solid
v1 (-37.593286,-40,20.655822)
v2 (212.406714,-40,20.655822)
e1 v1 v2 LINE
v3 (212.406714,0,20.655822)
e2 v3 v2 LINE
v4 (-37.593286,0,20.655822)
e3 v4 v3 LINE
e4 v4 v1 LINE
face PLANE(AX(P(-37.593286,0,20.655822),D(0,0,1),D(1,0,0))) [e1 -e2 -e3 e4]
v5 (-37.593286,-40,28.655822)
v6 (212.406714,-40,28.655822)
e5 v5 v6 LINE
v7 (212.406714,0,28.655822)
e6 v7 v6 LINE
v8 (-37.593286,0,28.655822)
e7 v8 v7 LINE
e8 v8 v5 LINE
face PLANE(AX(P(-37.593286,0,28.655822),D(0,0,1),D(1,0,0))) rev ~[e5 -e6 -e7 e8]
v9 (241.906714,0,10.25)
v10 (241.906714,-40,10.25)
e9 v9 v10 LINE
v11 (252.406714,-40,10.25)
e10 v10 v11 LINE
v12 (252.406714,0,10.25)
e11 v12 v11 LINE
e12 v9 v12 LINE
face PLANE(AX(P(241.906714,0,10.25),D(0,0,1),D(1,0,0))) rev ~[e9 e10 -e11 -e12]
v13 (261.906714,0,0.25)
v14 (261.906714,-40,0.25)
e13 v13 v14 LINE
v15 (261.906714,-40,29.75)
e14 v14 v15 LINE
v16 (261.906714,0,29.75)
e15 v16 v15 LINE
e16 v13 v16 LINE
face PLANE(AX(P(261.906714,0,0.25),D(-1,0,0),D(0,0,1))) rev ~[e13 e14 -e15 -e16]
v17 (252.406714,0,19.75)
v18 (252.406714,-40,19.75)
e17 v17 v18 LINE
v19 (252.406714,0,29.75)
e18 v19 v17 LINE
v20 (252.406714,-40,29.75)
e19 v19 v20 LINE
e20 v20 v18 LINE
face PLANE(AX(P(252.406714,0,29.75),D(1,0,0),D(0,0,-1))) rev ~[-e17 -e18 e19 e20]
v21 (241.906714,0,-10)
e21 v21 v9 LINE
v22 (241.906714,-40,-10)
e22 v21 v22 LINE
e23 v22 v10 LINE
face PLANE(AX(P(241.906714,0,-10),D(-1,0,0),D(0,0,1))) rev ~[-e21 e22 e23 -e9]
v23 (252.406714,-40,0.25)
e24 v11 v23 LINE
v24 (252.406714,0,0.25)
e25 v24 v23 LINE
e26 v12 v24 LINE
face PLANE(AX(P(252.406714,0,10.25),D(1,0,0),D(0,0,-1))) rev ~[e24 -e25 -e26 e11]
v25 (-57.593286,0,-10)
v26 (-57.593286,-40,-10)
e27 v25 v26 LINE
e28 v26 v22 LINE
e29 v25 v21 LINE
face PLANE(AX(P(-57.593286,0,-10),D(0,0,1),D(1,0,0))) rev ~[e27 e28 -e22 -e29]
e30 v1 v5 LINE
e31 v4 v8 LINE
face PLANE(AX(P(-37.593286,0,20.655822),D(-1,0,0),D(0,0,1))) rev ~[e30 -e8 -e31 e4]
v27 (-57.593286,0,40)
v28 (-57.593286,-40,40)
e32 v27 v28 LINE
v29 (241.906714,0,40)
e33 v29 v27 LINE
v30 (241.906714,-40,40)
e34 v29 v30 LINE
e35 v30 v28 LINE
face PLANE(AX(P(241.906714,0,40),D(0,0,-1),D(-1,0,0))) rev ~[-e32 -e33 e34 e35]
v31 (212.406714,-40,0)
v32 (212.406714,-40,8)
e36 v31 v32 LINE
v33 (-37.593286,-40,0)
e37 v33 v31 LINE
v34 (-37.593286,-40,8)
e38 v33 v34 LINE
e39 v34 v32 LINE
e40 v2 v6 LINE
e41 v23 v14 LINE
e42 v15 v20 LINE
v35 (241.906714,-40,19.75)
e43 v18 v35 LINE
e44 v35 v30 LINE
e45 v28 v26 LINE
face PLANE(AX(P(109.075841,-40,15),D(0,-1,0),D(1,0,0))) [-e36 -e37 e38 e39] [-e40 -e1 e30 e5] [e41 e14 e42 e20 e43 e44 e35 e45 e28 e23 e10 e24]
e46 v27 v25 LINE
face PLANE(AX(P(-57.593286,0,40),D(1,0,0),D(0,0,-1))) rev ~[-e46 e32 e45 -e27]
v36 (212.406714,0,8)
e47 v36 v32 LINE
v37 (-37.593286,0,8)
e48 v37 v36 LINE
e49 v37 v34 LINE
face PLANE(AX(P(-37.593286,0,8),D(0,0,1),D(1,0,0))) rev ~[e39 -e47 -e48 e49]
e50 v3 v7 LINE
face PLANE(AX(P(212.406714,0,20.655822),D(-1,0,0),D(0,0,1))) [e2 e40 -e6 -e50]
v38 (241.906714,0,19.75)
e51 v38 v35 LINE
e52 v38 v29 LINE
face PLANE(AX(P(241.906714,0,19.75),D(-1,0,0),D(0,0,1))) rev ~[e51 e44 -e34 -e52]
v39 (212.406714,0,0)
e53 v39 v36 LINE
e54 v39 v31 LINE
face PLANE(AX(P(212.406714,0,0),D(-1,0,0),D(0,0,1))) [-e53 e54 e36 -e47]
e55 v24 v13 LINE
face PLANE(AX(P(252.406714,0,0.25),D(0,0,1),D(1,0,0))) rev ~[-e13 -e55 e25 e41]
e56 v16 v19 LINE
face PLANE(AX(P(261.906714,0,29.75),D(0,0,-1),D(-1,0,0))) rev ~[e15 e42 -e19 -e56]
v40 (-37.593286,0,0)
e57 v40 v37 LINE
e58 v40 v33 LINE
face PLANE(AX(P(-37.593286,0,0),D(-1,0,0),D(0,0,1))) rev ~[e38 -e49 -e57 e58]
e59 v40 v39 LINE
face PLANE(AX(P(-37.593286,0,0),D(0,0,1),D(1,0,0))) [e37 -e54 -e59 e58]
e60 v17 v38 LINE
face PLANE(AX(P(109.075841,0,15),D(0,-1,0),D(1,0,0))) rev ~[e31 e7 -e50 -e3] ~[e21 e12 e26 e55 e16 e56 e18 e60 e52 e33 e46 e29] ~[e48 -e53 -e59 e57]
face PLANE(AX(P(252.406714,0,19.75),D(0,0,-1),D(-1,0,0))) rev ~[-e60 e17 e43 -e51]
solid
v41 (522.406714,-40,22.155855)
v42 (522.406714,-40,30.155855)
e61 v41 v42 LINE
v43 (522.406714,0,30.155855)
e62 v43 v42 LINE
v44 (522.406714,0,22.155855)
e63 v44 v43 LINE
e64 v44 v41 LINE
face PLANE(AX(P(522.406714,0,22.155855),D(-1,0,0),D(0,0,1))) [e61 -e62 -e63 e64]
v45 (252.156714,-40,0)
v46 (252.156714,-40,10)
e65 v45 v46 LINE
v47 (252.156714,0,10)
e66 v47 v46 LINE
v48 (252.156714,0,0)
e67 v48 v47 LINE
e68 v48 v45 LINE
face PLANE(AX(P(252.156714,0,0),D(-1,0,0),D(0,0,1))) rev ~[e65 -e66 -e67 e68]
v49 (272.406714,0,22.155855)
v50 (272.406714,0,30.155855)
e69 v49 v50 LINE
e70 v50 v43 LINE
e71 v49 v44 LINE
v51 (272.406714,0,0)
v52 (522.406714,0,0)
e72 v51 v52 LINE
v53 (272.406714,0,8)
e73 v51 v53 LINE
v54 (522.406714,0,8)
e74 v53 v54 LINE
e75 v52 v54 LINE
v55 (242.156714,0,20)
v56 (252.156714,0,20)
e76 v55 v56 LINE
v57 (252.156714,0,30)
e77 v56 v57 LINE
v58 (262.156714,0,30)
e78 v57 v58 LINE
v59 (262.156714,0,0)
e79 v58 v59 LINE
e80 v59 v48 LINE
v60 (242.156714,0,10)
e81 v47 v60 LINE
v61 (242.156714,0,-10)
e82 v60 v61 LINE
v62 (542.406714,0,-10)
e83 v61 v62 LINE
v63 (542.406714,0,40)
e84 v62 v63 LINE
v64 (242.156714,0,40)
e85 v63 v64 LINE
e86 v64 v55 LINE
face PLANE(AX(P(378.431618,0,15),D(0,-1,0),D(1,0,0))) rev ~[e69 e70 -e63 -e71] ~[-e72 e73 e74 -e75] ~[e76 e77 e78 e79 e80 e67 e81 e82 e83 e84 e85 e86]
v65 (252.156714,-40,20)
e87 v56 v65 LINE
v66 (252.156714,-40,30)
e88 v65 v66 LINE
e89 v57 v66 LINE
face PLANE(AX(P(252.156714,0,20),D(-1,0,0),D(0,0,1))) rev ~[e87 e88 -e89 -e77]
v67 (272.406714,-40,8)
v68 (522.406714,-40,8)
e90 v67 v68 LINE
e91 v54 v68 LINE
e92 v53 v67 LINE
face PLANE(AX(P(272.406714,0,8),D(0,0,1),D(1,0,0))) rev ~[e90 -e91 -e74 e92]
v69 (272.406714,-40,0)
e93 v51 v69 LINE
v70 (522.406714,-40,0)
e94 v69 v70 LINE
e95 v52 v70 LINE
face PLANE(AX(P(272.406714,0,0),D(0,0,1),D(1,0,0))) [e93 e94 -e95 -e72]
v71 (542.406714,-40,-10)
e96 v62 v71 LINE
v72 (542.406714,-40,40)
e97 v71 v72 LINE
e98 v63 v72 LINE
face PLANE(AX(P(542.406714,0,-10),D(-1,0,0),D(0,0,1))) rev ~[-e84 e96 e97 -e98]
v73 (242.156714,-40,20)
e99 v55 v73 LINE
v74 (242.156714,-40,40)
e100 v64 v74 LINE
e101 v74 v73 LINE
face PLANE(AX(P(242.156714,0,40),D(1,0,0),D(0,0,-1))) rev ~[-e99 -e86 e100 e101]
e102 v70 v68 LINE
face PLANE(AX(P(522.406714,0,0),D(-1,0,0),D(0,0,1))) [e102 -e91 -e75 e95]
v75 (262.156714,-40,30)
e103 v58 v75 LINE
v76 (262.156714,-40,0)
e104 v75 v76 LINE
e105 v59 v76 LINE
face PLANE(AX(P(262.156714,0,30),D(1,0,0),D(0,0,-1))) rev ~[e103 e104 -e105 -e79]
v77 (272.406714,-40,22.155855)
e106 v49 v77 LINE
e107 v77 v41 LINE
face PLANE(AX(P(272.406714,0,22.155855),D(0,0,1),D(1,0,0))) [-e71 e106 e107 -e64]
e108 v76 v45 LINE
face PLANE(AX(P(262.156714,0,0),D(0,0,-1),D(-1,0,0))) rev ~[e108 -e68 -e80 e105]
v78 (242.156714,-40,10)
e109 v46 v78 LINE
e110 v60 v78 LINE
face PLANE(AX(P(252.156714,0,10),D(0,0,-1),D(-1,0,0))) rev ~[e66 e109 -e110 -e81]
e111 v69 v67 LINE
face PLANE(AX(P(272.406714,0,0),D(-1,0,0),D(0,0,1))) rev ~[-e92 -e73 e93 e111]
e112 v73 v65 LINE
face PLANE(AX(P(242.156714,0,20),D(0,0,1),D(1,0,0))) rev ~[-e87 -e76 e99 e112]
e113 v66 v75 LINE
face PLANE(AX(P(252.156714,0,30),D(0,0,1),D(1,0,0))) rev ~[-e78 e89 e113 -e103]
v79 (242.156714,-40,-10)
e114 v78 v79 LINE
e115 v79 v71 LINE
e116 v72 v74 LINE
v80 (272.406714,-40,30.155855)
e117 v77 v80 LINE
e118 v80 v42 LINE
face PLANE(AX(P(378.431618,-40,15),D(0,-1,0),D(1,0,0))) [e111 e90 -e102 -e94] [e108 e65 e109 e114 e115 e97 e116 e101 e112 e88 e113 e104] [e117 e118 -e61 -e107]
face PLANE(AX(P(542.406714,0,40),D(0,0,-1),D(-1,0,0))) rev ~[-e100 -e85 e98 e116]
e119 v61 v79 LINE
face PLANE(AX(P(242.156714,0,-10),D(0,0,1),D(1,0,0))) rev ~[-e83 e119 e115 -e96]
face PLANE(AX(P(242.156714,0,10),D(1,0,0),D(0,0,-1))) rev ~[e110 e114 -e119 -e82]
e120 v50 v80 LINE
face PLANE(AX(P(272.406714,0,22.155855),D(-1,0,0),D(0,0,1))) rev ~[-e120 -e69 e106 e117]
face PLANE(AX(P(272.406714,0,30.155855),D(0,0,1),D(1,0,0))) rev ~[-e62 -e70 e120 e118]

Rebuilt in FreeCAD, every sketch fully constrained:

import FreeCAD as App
import Part
import Sketcher

V = App.Vector

doc = App.newDocument("Part")
body = doc.addObject("PartDesign::Body", "Body")

# Sketch on XZ plane
sketch1 = body.newObject("Sketcher::SketchObject", "Sketch")
sketch1.AttachmentSupport = (doc.getObject("XZ_Plane"), [""])
sketch1.MapMode = "FlatFace"
sketch1.addGeometry([
    Part.LineSegment(V(542, 40, 0), V(242, 40, 0)),  # 0
    Part.LineSegment(V(242, 40, 0), V(242, 20, 0)),  # 1
    Part.LineSegment(V(242, 20, 0), V(252, 20, 0)),  # 2
    Part.LineSegment(V(252, 20, 0), V(252, 30, 0)),  # 3
    Part.LineSegment(V(252, 30, 0), V(262, 30, 0)),  # 4
    Part.LineSegment(V(262, 30, 0), V(262, 0, 0)),  # 5
    Part.LineSegment(V(262, 0, 0), V(252, 0, 0)),  # 6
    Part.LineSegment(V(252, 0, 0), V(252, 10, 0)),  # 7
    Part.LineSegment(V(252, 10, 0), V(242, 10, 0)),  # 8
    Part.LineSegment(V(242, 10, 0), V(242, -10, 0)),  # 9
    Part.LineSegment(V(242, -10, 0), V(542, -10, 0)),  # 10
    Part.LineSegment(V(542, -10, 0), V(542, 40, 0)),  # 11
    Part.LineSegment(V(522, 0, 0), V(272, 0, 0)),  # 12
    Part.LineSegment(V(272, 0, 0), V(272, 8, 0)),  # 13
    Part.LineSegment(V(272, 8, 0), V(522, 8, 0)),  # 14
    Part.LineSegment(V(522, 8, 0), V(522, 0, 0)),  # 15
    Part.LineSegment(V(522, 22, 0), V(272, 22, 0)),  # 16
    Part.LineSegment(V(272, 22, 0), V(272, 30, 0)),  # 17
    Part.LineSegment(V(272, 30, 0), V(522, 30, 0)),  # 18
    Part.LineSegment(V(522, 30, 0), V(522, 22, 0)),  # 19
], False)
sketch1.addConstraint([
    Sketcher.Constraint("Coincident", 0, 2, 1, 1),
    Sketcher.Constraint("Coincident", 1, 2, 2, 1),
    Sketcher.Constraint("Coincident", 2, 2, 3, 1),
    Sketcher.Constraint("Coincident", 3, 2, 4, 1),
    Sketcher.Constraint("Coincident", 4, 2, 5, 1),
    Sketcher.Constraint("Coincident", 5, 2, 6, 1),
    Sketcher.Constraint("Coincident", 6, 2, 7, 1),
    Sketcher.Constraint("Coincident", 7, 2, 8, 1),
    Sketcher.Constraint("Coincident", 8, 2, 9, 1),
    Sketcher.Constraint("Coincident", 9, 2, 10, 1),
    Sketcher.Constraint("Coincident", 10, 2, 11, 1),
    Sketcher.Constraint("Coincident", 11, 2, 0, 1),
    Sketcher.Constraint("Coincident", 12, 2, 13, 1),
    Sketcher.Constraint("Coincident", 13, 2, 14, 1),
    Sketcher.Constraint("Coincident", 14, 2, 15, 1),
    Sketcher.Constraint("Coincident", 15, 2, 12, 1),
    Sketcher.Constraint("Coincident", 16, 2, 17, 1),
    Sketcher.Constraint("Coincident", 17, 2, 18, 1),
    Sketcher.Constraint("Coincident", 18, 2, 19, 1),
    Sketcher.Constraint("Coincident", 19, 2, 16, 1),
    Sketcher.Constraint("Horizontal", 0),
    Sketcher.Constraint("Vertical", 1),
    Sketcher.Constraint("Horizontal", 2),
    Sketcher.Constraint("Vertical", 3),
    Sketcher.Constraint("Horizontal", 4),
    Sketcher.Constraint("Vertical", 5),
    Sketcher.Constraint("Horizontal", 6),
    Sketcher.Constraint("Vertical", 7),
    Sketcher.Constraint("Horizontal", 8),
    Sketcher.Constraint("Vertical", 9),
    Sketcher.Constraint("Horizontal", 10),
    Sketcher.Constraint("Vertical", 11),
    Sketcher.Constraint("Horizontal", 12),
    Sketcher.Constraint("Vertical", 13),
    Sketcher.Constraint("Horizontal", 14),
    Sketcher.Constraint("Vertical", 15),
    Sketcher.Constraint("Horizontal", 16),
    Sketcher.Constraint("Vertical", 17),
    Sketcher.Constraint("Horizontal", 18),
    Sketcher.Constraint("Vertical", 19),
    Sketcher.Constraint("PointOnObject", 5, 2, -1),
    Sketcher.Constraint("PointOnObject", 12, 2, -1),
    Sketcher.Constraint("Vertical", 3, 2, 6, 2),
    Sketcher.Constraint("Vertical", 1, 2, 8, 2),
    Sketcher.Constraint("Vertical", 13, 2, 16, 2),
    Sketcher.Constraint("Vertical", 15, 2, 18, 2),
    Sketcher.Constraint("Equal", 2, 4),
    Sketcher.Constraint("Equal", 8, 3),
    Sketcher.Constraint("Equal", 3, 7),
    Sketcher.Constraint("Equal", 1, 9),
    Sketcher.Constraint("Equal", 15, 17),
    Sketcher.Constraint("DistanceX", 2, 1, 2, 2, 10.0),
    Sketcher.Constraint("DistanceX", 12, 2, 12, 1, 250.0),
    Sketcher.Constraint("DistanceY", 1, 2, 1, 1, 20.0),
    Sketcher.Constraint("DistanceY", 5, 2, 5, 1, 30.0),
    Sketcher.Constraint("DistanceY", 13, 1, 13, 2, 8.0),
    Sketcher.Constraint("DistanceX", 14, 2, 10, 2, 20.0),
    Sketcher.Constraint("DistanceX", 0, 2, 0, 1, 300.25),
    Sketcher.Constraint("DistanceX", -1, 1, 0, 2, 242.156714),
    Sketcher.Constraint("DistanceY", -1, 1, 16, 2, 22.155855),
])
pad1 = body.newObject("PartDesign::Pad", "Pad")
pad1.Profile = sketch1
pad1.Length = 40
body2 = doc.addObject("PartDesign::Body", "Body001")

# Sketch on XZ plane
sketch2 = body2.newObject("Sketcher::SketchObject", "Sketch001")
sketch2.AttachmentSupport = (doc.getObject("XZ_Plane001"), [""])
sketch2.MapMode = "FlatFace"
sketch2.addGeometry([
    Part.LineSegment(V(242, 40, 0), V(-58, 40, 0)),  # 0
    Part.LineSegment(V(-58, 40, 0), V(-58, -10, 0)),  # 1
    Part.LineSegment(V(-58, -10, 0), V(242, -10, 0)),  # 2
    Part.LineSegment(V(242, -10, 0), V(242, 10, 0)),  # 3
    Part.LineSegment(V(242, 10, 0), V(252, 10, 0)),  # 4
    Part.LineSegment(V(252, 10, 0), V(252, 0, 0)),  # 5
    Part.LineSegment(V(252, 0, 0), V(262, 0, 0)),  # 6
    Part.LineSegment(V(262, 0, 0), V(262, 30, 0)),  # 7
    Part.LineSegment(V(262, 30, 0), V(252, 30, 0)),  # 8
    Part.LineSegment(V(252, 30, 0), V(252, 20, 0)),  # 9
    Part.LineSegment(V(252, 20, 0), V(242, 20, 0)),  # 10
    Part.LineSegment(V(242, 20, 0), V(242, 40, 0)),  # 11
    Part.LineSegment(V(212, 0, 0), V(-38, 0, 0)),  # 12
    Part.LineSegment(V(-38, 0, 0), V(-38, 8, 0)),  # 13
    Part.LineSegment(V(-38, 8, 0), V(212, 8, 0)),  # 14
    Part.LineSegment(V(212, 8, 0), V(212, 0, 0)),  # 15
    Part.LineSegment(V(212, 21, 0), V(-38, 21, 0)),  # 16
    Part.LineSegment(V(-38, 21, 0), V(-38, 29, 0)),  # 17
    Part.LineSegment(V(-38, 29, 0), V(212, 29, 0)),  # 18
    Part.LineSegment(V(212, 29, 0), V(212, 21, 0)),  # 19
], False)
sketch2.addConstraint([
    Sketcher.Constraint("Coincident", 0, 2, 1, 1),
    Sketcher.Constraint("Coincident", 1, 2, 2, 1),
    Sketcher.Constraint("Coincident", 2, 2, 3, 1),
    Sketcher.Constraint("Coincident", 3, 2, 4, 1),
    Sketcher.Constraint("Coincident", 4, 2, 5, 1),
    Sketcher.Constraint("Coincident", 5, 2, 6, 1),
    Sketcher.Constraint("Coincident", 6, 2, 7, 1),
    Sketcher.Constraint("Coincident", 7, 2, 8, 1),
    Sketcher.Constraint("Coincident", 8, 2, 9, 1),
    Sketcher.Constraint("Coincident", 9, 2, 10, 1),
    Sketcher.Constraint("Coincident", 10, 2, 11, 1),
    Sketcher.Constraint("Coincident", 11, 2, 0, 1),
    Sketcher.Constraint("Coincident", 12, 2, 13, 1),
    Sketcher.Constraint("Coincident", 13, 2, 14, 1),
    Sketcher.Constraint("Coincident", 14, 2, 15, 1),
    Sketcher.Constraint("Coincident", 15, 2, 12, 1),
    Sketcher.Constraint("Coincident", 16, 2, 17, 1),
    Sketcher.Constraint("Coincident", 17, 2, 18, 1),
    Sketcher.Constraint("Coincident", 18, 2, 19, 1),
    Sketcher.Constraint("Coincident", 19, 2, 16, 1),
    Sketcher.Constraint("Horizontal", 0),
    Sketcher.Constraint("Vertical", 1),
    Sketcher.Constraint("Horizontal", 2),
    Sketcher.Constraint("Vertical", 3),
    Sketcher.Constraint("Horizontal", 4),
    Sketcher.Constraint("Vertical", 5),
    Sketcher.Constraint("Horizontal", 6),
    Sketcher.Constraint("Vertical", 7),
    Sketcher.Constraint("Horizontal", 8),
    Sketcher.Constraint("Vertical", 9),
    Sketcher.Constraint("Horizontal", 10),
    Sketcher.Constraint("Vertical", 11),
    Sketcher.Constraint("Horizontal", 12),
    Sketcher.Constraint("Vertical", 13),
    Sketcher.Constraint("Horizontal", 14),
    Sketcher.Constraint("Vertical", 15),
    Sketcher.Constraint("Horizontal", 16),
    Sketcher.Constraint("Vertical", 17),
    Sketcher.Constraint("Horizontal", 18),
    Sketcher.Constraint("Vertical", 19),
    Sketcher.Constraint("PointOnObject", 12, 2, -1),
    Sketcher.Constraint("Vertical", 5, 2, 8, 2),
    Sketcher.Constraint("Vertical", 3, 2, 10, 2),
    Sketcher.Constraint("Vertical", 13, 2, 16, 2),
    Sketcher.Constraint("Vertical", 15, 2, 18, 2),
    Sketcher.Constraint("Equal", 5, 9),
    Sketcher.Constraint("Equal", 3, 11),
    Sketcher.Constraint("Equal", 15, 17),
    Sketcher.Constraint("DistanceX", 12, 2, 12, 1, 250.0),
    Sketcher.Constraint("DistanceY", 1, 2, 1, 1, 50.0),
    Sketcher.Constraint("DistanceY", 5, 2, 5, 1, 10.0),
    Sketcher.Constraint("DistanceY", 13, 1, 13, 2, 8.0),
    Sketcher.Constraint("DistanceX", 0, 2, 0, 1, 299.5),
    Sketcher.Constraint("DistanceX", 4, 1, 4, 2, 10.5),
    Sketcher.Constraint("DistanceX", 6, 1, 6, 2, 9.5),
    Sketcher.Constraint("DistanceY", 7, 1, 7, 2, 29.5),
    Sketcher.Constraint("DistanceY", -1, 1, 0, 2, 40.0),
    Sketcher.Constraint("DistanceX", 1, 2, 12, 2, 20.0),
    Sketcher.Constraint("DistanceX", 0, 2, -1, 1, 57.593286),
    Sketcher.Constraint("DistanceY", -1, 1, 16, 2, 20.655822),
])
pad2 = body2.newObject("PartDesign::Pad", "Pad001")
pad2.Profile = sketch2
pad2.Length = 40

doc.recompute()
